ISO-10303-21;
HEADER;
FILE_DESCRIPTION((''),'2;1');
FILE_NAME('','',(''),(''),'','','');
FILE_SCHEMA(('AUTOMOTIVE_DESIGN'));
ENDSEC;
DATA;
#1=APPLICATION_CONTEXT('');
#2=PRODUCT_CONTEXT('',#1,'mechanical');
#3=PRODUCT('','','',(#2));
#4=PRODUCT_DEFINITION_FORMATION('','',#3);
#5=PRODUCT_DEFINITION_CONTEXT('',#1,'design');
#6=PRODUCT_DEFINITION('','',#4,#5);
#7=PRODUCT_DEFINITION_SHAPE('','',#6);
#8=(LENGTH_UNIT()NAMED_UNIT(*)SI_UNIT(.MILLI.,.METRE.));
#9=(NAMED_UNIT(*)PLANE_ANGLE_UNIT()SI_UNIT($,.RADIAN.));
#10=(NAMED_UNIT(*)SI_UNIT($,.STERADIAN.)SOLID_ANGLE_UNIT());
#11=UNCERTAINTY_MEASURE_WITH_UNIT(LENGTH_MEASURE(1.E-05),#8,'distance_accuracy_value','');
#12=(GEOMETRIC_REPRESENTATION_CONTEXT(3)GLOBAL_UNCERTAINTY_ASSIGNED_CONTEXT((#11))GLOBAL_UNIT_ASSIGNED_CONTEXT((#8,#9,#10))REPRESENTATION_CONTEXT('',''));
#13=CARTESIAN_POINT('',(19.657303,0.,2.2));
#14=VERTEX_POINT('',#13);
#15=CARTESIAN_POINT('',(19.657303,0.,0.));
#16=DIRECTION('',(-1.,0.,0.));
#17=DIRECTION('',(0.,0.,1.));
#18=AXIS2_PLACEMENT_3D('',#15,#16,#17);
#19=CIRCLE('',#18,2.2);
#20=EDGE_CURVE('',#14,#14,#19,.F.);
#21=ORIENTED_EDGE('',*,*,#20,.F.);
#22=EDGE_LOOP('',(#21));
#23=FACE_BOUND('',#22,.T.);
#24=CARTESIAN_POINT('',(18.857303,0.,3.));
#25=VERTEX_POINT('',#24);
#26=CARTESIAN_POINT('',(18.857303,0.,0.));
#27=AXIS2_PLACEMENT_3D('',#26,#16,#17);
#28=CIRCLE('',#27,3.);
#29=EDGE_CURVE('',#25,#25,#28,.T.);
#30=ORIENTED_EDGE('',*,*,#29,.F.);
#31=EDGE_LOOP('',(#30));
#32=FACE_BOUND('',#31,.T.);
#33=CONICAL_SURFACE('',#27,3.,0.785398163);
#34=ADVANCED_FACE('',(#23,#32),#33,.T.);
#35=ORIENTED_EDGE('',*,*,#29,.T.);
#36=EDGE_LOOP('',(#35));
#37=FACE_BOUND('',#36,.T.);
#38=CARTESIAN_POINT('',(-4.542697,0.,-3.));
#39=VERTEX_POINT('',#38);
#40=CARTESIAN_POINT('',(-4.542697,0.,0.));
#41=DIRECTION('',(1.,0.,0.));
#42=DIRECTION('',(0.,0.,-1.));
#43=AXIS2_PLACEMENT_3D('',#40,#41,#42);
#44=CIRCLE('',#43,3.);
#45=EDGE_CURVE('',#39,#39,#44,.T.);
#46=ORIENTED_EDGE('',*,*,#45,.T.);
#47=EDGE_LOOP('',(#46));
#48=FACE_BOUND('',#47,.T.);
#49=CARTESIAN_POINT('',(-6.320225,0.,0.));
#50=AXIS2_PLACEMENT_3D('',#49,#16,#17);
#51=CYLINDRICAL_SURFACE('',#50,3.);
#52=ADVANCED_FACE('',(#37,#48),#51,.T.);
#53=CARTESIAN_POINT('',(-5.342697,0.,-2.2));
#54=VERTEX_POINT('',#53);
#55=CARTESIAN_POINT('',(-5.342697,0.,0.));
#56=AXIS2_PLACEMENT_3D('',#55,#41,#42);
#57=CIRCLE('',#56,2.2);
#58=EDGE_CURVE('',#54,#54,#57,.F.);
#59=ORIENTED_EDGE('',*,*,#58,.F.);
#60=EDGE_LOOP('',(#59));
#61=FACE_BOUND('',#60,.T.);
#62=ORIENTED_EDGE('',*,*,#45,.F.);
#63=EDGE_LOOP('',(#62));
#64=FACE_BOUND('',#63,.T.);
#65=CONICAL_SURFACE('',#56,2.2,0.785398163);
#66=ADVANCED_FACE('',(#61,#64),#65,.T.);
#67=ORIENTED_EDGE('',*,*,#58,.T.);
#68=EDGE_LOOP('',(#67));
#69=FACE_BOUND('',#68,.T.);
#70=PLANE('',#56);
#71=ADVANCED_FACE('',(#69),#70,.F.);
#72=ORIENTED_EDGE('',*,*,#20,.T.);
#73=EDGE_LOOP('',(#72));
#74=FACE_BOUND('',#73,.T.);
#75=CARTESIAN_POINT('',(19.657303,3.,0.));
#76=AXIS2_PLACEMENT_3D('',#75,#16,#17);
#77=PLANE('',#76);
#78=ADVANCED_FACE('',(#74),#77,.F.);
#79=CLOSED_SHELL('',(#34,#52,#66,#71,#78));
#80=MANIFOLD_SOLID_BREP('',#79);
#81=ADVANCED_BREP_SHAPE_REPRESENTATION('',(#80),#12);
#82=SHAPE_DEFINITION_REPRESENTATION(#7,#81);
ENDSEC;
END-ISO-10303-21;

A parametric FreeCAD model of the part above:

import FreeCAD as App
import Part
import Sketcher


def edges_at(feature, points):
    """Names of the edges that pass closest to the given points."""
    edges = feature.Shape.Edges
    near = lambda p: min(range(len(edges)), key=lambda i: edges[i].distToShape(Part.Vertex(*p))[0])
    return sorted({f"Edge{near(p) + 1}" for p in points})


def add_polygon(sketch, points):
    """Adds a closed chain of lines whose ends are joined by coincident constraints."""
    first, n = sketch.GeometryCount, len(points)
    for a, b in zip(points, points[1:] + points[:1]):
        sketch.addGeometry(Part.LineSegment(App.Vector(*a, 0), App.Vector(*b, 0)), False)
    for i in range(n):
        sketch.addConstraint(Sketcher.Constraint("Coincident", first + i, 2, first + (i + 1) % n, 1))

doc = App.newDocument("Part")
body = doc.addObject("PartDesign::Body", "Body")

sketch1 = body.newObject("Sketcher::SketchObject", "Sketch")
sketch1.AttachmentSupport = (doc.getObject("XY_Plane"), [""])
sketch1.MapMode = "FlatFace"
add_polygon(sketch1, [(-5.342697, 3), (-5.342697, 0), (19.657303, 0), (19.657303, 3)])
sketch1.addConstraint(Sketcher.Constraint("Vertical", 0))
sketch1.addConstraint(Sketcher.Constraint("Horizontal", 1))
sketch1.addConstraint(Sketcher.Constraint("Vertical", 2))
sketch1.addConstraint(Sketcher.Constraint("Horizontal", 3))
sketch1.addConstraint(Sketcher.Constraint("PointOnObject", 0, 2, -1))
sketch1.addConstraint(Sketcher.Constraint("DistanceX", 1, 1, 1, 2, 25.0))
sketch1.addConstraint(Sketcher.Constraint("DistanceY", 0, 2, 0, 1, 3.0))
sketch1.addConstraint(Sketcher.Constraint("DistanceX", 0, 2, -1, 1, 5.342697))
revolution = body.newObject("PartDesign::Revolution", "Revolution")
revolution.Profile = sketch1
revolution.ReferenceAxis = (sketch1, ["H_Axis"])
revolution.Angle = 360
doc.recompute()

chamfer = body.newObject("PartDesign::Chamfer", "Chamfer")
chamfer.Base = (revolution, edges_at(revolution, [(19.657, 0, -3), (-5.343, 0, -3)]))
chamfer.Size = 0.8

doc.recompute()
